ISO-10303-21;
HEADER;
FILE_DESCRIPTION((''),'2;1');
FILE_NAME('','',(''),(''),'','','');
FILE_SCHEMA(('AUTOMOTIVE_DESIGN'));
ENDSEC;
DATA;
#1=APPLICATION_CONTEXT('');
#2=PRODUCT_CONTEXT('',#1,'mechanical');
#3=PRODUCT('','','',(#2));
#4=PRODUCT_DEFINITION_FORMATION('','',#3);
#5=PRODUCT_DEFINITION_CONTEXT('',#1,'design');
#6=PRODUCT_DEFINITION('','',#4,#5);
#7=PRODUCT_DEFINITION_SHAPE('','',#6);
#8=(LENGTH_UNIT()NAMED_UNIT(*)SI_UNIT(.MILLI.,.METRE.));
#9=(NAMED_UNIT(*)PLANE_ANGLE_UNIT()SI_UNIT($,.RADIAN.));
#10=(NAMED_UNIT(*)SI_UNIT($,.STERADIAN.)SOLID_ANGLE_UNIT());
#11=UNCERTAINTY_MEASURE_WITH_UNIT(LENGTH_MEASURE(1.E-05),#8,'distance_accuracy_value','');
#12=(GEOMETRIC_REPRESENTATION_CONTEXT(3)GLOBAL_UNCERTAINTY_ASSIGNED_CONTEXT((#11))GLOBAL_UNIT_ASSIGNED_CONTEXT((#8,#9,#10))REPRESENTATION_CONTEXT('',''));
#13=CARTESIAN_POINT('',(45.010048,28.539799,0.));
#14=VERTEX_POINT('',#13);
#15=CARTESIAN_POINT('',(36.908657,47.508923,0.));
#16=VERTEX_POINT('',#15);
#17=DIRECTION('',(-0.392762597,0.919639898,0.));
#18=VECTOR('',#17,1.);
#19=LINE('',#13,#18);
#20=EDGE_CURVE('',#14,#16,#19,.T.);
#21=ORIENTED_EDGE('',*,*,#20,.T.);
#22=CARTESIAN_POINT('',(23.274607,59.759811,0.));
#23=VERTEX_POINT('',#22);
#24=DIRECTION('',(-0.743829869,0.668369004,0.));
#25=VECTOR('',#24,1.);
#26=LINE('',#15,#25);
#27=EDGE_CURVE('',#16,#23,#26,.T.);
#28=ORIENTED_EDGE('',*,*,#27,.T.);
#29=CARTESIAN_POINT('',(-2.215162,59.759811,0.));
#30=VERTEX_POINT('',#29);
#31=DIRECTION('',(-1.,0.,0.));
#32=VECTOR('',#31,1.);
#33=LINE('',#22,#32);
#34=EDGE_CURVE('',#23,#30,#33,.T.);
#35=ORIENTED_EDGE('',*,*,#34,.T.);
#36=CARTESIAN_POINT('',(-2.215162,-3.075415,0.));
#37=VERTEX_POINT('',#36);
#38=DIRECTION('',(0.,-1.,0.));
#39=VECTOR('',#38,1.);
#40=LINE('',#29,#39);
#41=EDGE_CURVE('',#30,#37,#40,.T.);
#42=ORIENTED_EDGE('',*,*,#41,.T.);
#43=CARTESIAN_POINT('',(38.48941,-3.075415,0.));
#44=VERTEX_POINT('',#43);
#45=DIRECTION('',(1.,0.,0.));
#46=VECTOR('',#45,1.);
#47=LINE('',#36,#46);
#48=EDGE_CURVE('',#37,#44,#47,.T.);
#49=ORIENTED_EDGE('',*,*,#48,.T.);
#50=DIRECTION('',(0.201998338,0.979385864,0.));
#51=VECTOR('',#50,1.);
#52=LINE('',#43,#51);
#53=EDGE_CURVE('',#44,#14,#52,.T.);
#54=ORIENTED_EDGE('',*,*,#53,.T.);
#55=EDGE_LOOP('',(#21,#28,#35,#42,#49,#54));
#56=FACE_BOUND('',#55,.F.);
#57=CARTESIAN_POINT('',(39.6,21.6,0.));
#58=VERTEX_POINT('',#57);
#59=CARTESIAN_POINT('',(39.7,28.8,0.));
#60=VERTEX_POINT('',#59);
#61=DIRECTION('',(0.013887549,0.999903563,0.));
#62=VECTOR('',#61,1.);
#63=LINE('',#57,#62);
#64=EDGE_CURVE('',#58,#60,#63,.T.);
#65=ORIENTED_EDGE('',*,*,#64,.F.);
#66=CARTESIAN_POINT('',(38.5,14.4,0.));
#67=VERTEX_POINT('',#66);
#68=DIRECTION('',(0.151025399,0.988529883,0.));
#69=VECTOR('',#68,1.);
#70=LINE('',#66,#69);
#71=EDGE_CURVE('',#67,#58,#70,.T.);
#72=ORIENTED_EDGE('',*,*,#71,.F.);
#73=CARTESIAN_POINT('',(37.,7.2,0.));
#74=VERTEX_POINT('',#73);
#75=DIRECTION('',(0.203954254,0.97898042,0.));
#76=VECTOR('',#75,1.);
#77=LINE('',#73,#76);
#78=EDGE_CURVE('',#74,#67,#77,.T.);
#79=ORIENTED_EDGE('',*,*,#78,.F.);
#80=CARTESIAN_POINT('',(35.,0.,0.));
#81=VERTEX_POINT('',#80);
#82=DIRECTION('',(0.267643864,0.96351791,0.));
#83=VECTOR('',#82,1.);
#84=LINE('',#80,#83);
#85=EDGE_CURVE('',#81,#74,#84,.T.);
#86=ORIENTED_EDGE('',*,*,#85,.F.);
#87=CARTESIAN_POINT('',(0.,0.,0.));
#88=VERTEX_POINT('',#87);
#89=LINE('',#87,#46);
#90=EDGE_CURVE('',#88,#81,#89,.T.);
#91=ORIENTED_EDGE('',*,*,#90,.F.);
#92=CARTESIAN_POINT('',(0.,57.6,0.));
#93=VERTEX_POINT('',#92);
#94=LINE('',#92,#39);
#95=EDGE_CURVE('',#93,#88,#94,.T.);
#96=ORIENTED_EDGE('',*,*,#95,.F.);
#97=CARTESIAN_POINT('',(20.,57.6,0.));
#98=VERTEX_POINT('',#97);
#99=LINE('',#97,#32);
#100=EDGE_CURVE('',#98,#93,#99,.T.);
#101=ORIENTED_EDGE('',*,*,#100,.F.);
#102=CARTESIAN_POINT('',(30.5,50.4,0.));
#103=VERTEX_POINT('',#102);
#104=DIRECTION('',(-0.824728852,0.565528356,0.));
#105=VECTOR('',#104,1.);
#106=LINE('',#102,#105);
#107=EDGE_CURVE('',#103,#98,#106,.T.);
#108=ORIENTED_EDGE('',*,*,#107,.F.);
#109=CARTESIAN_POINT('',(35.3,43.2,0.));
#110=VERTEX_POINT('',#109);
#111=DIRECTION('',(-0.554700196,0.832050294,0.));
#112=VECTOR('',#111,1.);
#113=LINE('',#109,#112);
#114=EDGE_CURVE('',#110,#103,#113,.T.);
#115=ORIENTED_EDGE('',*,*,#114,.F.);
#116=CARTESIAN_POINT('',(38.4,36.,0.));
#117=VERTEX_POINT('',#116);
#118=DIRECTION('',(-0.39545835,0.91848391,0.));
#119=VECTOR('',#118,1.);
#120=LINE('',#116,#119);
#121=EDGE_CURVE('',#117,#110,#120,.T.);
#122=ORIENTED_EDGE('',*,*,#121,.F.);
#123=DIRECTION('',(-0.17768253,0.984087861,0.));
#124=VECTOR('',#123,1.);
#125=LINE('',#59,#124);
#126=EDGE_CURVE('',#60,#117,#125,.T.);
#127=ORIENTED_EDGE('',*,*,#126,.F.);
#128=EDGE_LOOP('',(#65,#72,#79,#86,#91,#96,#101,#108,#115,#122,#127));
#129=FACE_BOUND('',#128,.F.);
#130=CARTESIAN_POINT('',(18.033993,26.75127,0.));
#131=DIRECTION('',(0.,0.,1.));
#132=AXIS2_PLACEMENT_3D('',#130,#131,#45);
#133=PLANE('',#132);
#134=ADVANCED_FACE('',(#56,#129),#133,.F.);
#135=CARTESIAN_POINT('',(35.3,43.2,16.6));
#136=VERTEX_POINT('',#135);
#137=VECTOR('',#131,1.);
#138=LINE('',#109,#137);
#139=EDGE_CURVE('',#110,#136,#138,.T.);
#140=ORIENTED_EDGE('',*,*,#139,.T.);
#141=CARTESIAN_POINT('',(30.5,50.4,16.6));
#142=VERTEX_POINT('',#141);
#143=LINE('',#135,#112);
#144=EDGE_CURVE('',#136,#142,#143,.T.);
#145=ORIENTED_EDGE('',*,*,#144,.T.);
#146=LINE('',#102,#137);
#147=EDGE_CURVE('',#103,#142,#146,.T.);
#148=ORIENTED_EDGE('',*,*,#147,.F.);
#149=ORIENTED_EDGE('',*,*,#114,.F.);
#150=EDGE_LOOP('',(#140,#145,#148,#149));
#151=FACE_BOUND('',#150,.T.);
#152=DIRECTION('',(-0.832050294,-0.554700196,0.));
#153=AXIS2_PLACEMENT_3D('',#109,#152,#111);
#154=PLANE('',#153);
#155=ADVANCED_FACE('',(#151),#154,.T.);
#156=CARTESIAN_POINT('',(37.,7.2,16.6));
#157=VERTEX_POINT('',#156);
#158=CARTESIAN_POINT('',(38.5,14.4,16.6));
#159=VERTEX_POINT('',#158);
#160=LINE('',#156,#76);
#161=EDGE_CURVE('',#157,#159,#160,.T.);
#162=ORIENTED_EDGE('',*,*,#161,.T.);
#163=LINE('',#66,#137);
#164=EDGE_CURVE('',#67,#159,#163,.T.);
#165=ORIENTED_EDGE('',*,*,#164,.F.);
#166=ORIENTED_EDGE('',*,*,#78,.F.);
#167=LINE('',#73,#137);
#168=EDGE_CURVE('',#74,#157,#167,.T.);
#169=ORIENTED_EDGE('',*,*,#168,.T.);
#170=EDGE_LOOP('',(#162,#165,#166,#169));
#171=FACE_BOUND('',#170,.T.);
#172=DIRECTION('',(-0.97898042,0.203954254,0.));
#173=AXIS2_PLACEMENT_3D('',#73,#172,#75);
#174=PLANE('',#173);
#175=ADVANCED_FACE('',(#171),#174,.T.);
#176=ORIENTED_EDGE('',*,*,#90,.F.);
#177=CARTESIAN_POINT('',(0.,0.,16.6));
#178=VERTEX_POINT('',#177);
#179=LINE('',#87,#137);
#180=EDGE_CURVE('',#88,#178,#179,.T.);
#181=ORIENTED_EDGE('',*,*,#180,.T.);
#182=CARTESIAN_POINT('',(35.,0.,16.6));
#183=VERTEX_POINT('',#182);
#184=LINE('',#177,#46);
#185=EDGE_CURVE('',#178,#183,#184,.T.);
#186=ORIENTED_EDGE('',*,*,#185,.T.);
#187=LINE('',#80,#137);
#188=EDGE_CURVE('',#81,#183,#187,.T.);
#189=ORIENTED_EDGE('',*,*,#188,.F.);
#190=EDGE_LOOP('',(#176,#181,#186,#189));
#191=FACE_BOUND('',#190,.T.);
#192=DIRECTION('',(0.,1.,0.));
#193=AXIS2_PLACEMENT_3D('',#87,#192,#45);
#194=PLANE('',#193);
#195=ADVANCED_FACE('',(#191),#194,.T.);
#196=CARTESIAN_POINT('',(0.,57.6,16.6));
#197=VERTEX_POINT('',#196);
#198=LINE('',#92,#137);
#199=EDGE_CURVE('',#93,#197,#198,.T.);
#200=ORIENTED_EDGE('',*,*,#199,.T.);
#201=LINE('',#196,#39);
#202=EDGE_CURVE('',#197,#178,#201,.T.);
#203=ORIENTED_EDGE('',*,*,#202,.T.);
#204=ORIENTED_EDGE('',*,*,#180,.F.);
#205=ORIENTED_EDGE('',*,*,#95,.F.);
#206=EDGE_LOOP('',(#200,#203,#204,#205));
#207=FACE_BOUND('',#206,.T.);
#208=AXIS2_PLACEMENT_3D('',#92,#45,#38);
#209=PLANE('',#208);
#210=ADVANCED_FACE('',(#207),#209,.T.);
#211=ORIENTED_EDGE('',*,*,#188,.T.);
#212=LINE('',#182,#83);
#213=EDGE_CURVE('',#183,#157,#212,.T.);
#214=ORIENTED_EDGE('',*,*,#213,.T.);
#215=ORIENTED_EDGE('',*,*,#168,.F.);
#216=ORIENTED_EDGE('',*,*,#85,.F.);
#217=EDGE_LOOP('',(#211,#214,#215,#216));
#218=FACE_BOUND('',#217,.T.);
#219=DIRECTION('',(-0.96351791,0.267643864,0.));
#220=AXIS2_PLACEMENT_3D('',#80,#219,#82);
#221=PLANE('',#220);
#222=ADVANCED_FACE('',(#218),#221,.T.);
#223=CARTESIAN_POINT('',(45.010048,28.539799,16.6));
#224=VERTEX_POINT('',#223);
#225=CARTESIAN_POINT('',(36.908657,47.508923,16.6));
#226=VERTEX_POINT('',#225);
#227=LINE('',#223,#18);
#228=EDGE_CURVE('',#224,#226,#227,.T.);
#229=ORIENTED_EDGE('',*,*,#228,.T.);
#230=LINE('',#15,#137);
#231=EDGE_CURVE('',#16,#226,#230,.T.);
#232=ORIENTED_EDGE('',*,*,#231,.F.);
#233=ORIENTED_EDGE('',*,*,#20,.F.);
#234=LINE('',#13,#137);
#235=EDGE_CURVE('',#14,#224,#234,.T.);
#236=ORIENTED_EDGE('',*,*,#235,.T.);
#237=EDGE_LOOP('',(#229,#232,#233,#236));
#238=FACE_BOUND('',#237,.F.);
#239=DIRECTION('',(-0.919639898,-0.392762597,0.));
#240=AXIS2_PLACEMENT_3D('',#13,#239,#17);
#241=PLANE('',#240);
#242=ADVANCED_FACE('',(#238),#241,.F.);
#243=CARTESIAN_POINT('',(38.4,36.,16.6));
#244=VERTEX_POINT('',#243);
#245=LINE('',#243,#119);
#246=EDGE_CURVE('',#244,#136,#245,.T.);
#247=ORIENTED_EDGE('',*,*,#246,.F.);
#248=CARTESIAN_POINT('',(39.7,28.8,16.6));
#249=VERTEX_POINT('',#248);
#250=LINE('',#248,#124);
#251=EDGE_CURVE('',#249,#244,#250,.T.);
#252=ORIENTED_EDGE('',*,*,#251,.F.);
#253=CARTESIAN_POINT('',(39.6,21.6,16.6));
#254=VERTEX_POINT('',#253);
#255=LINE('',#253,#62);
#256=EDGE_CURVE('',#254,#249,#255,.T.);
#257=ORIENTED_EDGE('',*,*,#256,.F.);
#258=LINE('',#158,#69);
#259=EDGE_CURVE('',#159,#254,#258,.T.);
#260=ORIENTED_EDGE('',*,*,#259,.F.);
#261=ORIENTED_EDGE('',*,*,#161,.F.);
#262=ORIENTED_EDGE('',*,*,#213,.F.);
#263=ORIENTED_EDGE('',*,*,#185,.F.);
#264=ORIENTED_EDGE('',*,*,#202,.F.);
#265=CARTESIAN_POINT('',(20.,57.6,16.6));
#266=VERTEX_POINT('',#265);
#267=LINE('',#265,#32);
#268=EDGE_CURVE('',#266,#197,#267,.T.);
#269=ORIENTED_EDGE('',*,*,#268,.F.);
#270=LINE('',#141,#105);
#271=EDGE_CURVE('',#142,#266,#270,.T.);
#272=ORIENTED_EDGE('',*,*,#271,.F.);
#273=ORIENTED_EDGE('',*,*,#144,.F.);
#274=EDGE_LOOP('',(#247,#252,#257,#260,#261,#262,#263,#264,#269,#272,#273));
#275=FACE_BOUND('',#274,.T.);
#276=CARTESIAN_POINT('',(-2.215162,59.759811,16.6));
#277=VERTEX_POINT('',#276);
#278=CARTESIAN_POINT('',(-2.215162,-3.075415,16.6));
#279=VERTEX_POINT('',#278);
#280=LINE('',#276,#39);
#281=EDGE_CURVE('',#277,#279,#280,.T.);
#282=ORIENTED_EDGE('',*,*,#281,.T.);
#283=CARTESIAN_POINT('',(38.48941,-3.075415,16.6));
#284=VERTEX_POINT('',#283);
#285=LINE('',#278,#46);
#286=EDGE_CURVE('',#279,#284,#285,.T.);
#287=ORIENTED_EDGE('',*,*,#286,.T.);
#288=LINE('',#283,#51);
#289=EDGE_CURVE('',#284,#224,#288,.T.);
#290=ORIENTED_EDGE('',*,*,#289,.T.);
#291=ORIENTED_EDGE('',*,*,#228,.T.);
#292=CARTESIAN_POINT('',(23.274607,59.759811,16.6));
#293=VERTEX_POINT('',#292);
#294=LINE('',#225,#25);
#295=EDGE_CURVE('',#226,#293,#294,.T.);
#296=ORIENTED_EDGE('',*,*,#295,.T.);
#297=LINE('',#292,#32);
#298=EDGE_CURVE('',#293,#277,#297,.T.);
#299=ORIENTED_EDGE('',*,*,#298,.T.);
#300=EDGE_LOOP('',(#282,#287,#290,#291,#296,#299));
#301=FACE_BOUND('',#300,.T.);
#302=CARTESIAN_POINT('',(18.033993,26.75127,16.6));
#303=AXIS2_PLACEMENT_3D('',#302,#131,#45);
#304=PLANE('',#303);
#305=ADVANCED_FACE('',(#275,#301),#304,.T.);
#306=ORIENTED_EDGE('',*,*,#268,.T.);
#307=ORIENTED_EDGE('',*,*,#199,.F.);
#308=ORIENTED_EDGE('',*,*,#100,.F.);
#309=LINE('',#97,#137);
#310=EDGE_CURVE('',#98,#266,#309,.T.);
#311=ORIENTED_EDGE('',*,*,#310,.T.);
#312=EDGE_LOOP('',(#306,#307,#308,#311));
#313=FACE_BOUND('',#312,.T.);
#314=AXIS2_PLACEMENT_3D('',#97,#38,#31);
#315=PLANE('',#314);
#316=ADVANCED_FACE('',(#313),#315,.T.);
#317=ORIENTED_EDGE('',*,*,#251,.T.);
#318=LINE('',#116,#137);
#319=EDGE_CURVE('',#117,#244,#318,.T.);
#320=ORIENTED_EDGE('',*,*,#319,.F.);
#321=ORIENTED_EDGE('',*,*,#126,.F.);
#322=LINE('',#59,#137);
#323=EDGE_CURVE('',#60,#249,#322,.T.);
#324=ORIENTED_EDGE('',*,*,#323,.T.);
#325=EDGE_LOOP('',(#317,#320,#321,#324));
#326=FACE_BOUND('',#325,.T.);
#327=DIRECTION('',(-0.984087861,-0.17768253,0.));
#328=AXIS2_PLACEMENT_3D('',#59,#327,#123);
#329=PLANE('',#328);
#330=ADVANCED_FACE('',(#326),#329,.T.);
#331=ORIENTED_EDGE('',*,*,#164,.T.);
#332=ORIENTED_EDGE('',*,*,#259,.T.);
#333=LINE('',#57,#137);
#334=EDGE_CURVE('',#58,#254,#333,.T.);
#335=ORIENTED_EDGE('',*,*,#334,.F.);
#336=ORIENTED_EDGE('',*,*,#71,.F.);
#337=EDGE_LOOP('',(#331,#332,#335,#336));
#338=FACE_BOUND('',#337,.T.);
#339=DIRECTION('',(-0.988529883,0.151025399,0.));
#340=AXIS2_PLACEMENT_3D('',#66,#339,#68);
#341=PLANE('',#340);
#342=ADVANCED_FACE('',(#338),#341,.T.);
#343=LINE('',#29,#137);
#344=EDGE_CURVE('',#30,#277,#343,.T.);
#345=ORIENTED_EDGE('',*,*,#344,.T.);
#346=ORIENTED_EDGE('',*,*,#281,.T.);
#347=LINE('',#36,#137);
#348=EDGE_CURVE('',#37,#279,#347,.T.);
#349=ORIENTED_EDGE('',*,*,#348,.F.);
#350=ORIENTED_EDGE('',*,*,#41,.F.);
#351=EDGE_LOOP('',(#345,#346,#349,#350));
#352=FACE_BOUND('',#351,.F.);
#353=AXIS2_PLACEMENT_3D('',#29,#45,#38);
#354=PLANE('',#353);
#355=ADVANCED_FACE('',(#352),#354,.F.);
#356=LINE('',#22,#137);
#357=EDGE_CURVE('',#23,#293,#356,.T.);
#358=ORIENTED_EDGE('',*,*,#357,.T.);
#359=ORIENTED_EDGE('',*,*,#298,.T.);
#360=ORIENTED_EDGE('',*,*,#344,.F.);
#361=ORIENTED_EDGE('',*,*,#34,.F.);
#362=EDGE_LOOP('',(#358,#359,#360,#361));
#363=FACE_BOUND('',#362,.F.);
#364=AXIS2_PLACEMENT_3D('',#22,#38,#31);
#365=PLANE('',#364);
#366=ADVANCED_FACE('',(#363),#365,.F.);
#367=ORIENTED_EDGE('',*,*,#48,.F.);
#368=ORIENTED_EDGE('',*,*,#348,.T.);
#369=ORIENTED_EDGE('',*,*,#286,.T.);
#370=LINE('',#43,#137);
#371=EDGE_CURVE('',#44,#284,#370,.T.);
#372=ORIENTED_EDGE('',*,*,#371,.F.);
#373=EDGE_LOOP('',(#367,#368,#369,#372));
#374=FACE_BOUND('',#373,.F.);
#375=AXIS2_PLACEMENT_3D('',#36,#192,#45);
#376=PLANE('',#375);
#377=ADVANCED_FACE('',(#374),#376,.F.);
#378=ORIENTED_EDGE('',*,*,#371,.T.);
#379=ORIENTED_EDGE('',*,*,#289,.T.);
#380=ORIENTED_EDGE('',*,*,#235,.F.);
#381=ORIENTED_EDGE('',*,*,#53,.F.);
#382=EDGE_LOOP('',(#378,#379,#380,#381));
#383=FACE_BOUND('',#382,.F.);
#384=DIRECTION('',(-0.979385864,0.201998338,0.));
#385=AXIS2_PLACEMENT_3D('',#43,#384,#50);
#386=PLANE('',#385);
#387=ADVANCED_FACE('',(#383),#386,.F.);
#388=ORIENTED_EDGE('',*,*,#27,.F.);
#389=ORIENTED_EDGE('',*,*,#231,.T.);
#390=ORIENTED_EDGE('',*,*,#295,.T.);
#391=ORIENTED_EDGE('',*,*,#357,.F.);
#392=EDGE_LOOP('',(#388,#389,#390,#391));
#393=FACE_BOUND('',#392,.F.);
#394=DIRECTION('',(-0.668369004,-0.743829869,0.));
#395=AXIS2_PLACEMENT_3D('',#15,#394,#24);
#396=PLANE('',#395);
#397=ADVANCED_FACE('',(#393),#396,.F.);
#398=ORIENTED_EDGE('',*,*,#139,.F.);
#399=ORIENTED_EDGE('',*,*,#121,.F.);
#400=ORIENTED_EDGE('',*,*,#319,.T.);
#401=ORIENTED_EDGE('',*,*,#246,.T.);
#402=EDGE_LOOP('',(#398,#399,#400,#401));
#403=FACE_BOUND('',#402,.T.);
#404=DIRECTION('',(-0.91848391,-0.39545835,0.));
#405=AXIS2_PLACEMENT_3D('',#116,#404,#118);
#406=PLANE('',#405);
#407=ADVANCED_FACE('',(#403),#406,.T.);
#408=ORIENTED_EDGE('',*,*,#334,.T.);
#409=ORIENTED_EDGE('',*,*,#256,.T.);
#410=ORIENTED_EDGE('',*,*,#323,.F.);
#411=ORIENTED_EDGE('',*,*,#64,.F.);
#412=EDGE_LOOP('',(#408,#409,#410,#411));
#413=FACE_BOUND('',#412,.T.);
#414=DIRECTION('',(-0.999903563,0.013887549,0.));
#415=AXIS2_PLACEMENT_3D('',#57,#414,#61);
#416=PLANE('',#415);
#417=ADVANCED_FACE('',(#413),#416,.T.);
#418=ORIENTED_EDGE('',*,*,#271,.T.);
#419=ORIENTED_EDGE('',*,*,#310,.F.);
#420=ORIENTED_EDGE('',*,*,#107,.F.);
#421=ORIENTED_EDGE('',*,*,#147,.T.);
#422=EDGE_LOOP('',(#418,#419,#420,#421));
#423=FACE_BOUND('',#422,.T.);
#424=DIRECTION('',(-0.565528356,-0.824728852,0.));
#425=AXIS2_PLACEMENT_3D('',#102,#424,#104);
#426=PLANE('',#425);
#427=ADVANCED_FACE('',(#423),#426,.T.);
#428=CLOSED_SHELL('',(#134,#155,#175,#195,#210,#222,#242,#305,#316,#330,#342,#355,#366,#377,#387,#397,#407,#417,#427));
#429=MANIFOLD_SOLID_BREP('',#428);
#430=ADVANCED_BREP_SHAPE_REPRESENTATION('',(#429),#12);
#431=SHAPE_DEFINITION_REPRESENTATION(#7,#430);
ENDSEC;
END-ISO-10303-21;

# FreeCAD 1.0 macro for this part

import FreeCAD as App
import Part
import Sketcher

V = App.Vector

doc = App.newDocument("Part")
params = doc.addObject("Spreadsheet::Sheet", "Params")
for row, (alias, value) in enumerate([
    ("sketch1_width", "35 mm"),
    ("sketch1_width2", "20 mm"),
    ("sketch1_height", "57.6 mm"),
    ("pad1_length", "16.6 mm"),
], start=1):
    params.set(f"A{row}", alias)
    params.set(f"B{row}", "=" + value)
    params.setAlias(f"B{row}", alias)

body = doc.addObject("PartDesign::Body", "Body")

# Sketch on XY plane
sketch1 = doc.addObject("Sketcher::SketchObject", "Sketch")
body.addObject(sketch1)
sketch1.AttachmentSupport = (doc.XY_Plane, [""])
sketch1.MapMode = "FlatFace"
sketch1.addGeometry(Part.LineSegment(V(-2, 60, 0), V(-2, -3, 0)), False)
sketch1.addGeometry(Part.LineSegment(V(-2, -3, 0), V(38, -3, 0)), False)
sketch1.addGeometry(Part.LineSegment(V(38, -3, 0), V(45, 29, 0)), False)
sketch1.addGeometry(Part.LineSegment(V(45, 29, 0), V(37, 48, 0)), False)
sketch1.addGeometry(Part.LineSegment(V(37, 48, 0), V(23, 60, 0)), False)
sketch1.addGeometry(Part.LineSegment(V(23, 60, 0), V(-2, 60, 0)), False)
sketch1.addGeometry(Part.LineSegment(V(35, 0, 0), V(0, 0, 0)), False)
sketch1.addGeometry(Part.LineSegment(V(0, 0, 0), V(0, 58, 0)), False)
sketch1.addGeometry(Part.LineSegment(V(0, 58, 0), V(20, 58, 0)), False)
sketch1.addGeometry(Part.LineSegment(V(20, 58, 0), V(30, 50, 0)), False)
sketch1.addGeometry(Part.LineSegment(V(30, 50, 0), V(35, 43, 0)), False)
sketch1.addGeometry(Part.LineSegment(V(35, 43, 0), V(38, 36, 0)), False)
sketch1.addGeometry(Part.LineSegment(V(38, 36, 0), V(40, 29, 0)), False)
sketch1.addGeometry(Part.LineSegment(V(40, 29, 0), V(40, 22, 0)), False)
sketch1.addGeometry(Part.LineSegment(V(40, 22, 0), V(38, 14, 0)), False)
sketch1.addGeometry(Part.LineSegment(V(38, 14, 0), V(37, 7, 0)), False)
sketch1.addGeometry(Part.LineSegment(V(37, 7, 0), V(35, 0, 0)), False)
sketch1.addConstraint(Sketcher.Constraint("Coincident", 0, 2, 1, 1))
sketch1.addConstraint(Sketcher.Constraint("Coincident", 1, 2, 2, 1))
sketch1.addConstraint(Sketcher.Constraint("Coincident", 2, 2, 3, 1))
sketch1.addConstraint(Sketcher.Constraint("Coincident", 3, 2, 4, 1))
sketch1.addConstraint(Sketcher.Constraint("Coincident", 4, 2, 5, 1))
sketch1.addConstraint(Sketcher.Constraint("Coincident", 5, 2, 0, 1))
sketch1.addConstraint(Sketcher.Constraint("Coincident", 6, 2, 7, 1))
sketch1.addConstraint(Sketcher.Constraint("Coincident", 7, 2, 8, 1))
sketch1.addConstraint(Sketcher.Constraint("Coincident", 8, 2, 9, 1))
sketch1.addConstraint(Sketcher.Constraint("Coincident", 9, 2, 10, 1))
sketch1.addConstraint(Sketcher.Constraint("Coincident", 10, 2, 11, 1))
sketch1.addConstraint(Sketcher.Constraint("Coincident", 11, 2, 12, 1))
sketch1.addConstraint(Sketcher.Constraint("Coincident", 12, 2, 13, 1))
sketch1.addConstraint(Sketcher.Constraint("Coincident", 13, 2, 14, 1))
sketch1.addConstraint(Sketcher.Constraint("Coincident", 14, 2, 15, 1))
sketch1.addConstraint(Sketcher.Constraint("Coincident", 15, 2, 16, 1))
sketch1.addConstraint(Sketcher.Constraint("Coincident", 16, 2, 6, 1))
sketch1.addConstraint(Sketcher.Constraint("Vertical", 0))
sketch1.addConstraint(Sketcher.Constraint("Horizontal", 1))
sketch1.addConstraint(Sketcher.Constraint("Horizontal", 5))
sketch1.addConstraint(Sketcher.Constraint("Horizontal", 6))
sketch1.addConstraint(Sketcher.Constraint("Vertical", 7))
sketch1.addConstraint(Sketcher.Constraint("Horizontal", 8))
sketch1.addConstraint(Sketcher.Constraint("Coincident", 6, 2, -1, 1))
sketch1.addConstraint(Sketcher.Constraint("DistanceX", 6, 2, 6, 1, 35.0))
sketch1.addConstraint(Sketcher.Constraint("DistanceX", 8, 1, 8, 2, 20.0))
sketch1.addConstraint(Sketcher.Constraint("DistanceY", 7, 1, 7, 2, 57.6))
sketch1.addConstraint(Sketcher.Constraint("DistanceY", -1, 1, 11, 2, 36.0))
sketch1.addConstraint(Sketcher.Constraint("DistanceX", -1, 1, 15, 2, 37.0))
sketch1.addConstraint(Sketcher.Constraint("DistanceX", -1, 1, 9, 2, 30.5))
sketch1.addConstraint(Sketcher.Constraint("DistanceY", -1, 1, 9, 2, 50.4))
sketch1.addConstraint(Sketcher.Constraint("DistanceX", -1, 1, 10, 2, 35.3))
sketch1.addConstraint(Sketcher.Constraint("DistanceY", -1, 1, 10, 2, 43.2))
sketch1.addConstraint(Sketcher.Constraint("DistanceX", -1, 1, 11, 2, 38.4))
sketch1.addConstraint(Sketcher.Constraint("DistanceX", -1, 1, 12, 2, 39.7))
sketch1.addConstraint(Sketcher.Constraint("DistanceY", -1, 1, 12, 2, 28.8))
sketch1.addConstraint(Sketcher.Constraint("DistanceX", -1, 1, 13, 2, 39.6))
sketch1.addConstraint(Sketcher.Constraint("DistanceY", -1, 1, 13, 2, 21.6))
sketch1.addConstraint(Sketcher.Constraint("DistanceX", -1, 1, 14, 2, 38.5))
sketch1.addConstraint(Sketcher.Constraint("DistanceY", -1, 1, 14, 2, 14.4))
sketch1.addConstraint(Sketcher.Constraint("DistanceY", -1, 1, 15, 2, 7.2))
sketch1.addConstraint(Sketcher.Constraint("DistanceX", 5, 2, 5, 1, 25.489769))
sketch1.addConstraint(Sketcher.Constraint("DistanceY", -1, 1, 2, 2, 28.539799))
sketch1.addConstraint(Sketcher.Constraint("Distance", 2, 32.280652))
sketch1.addConstraint(Sketcher.Constraint("DistanceX", 1, 1, 1, 2, 40.704572))
sketch1.addConstraint(Sketcher.Constraint("DistanceY", 0, 2, 0, 1, 62.835226))
sketch1.addConstraint(Sketcher.Constraint("DistanceX", 0, 2, -1, 1, 2.215162))
sketch1.addConstraint(Sketcher.Constraint("DistanceY", -1, 1, 4, 2, 59.759811))
sketch1.addConstraint(Sketcher.Constraint("DistanceX", 3, 2, 2, 2, 8.101391))
sketch1.addConstraint(Sketcher.Constraint("DistanceY", 1, 2, 3, 2, 50.584338))
sketch1.setExpression("Constraints[24]", "Params.sketch1_width")
sketch1.setExpression("Constraints[25]", "Params.sketch1_width2")
sketch1.setExpression("Constraints[26]", "Params.sketch1_height")
pad1 = doc.addObject("PartDesign::Pad", "Pad")
body.addObject(pad1)
pad1.Profile = sketch1
pad1.setExpression("Length", "Params.pad1_length")

doc.recompute()
